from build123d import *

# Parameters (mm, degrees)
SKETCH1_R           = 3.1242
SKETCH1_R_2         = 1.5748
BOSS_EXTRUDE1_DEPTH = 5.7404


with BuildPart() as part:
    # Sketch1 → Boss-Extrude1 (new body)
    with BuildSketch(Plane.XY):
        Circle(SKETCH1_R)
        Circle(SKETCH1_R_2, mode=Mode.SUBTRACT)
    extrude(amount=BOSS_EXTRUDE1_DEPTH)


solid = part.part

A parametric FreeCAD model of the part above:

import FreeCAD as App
import Part
import Sketcher

V = App.Vector
Q = App.Units.Quantity

doc = App.newDocument("Part")
body = doc.addObject("PartDesign::Body", "Body")

sketch1 = doc.addObject("Sketcher::SketchObject", "Sketch")
body.addObject(sketch1)
sketch1.AttachmentSupport = (doc.XY_Plane, [""])
sketch1.MapMode = "FlatFace"
sketch1.addGeometry([
    Part.Circle(V(0, 0, 0), V(0, 0, 1), 3.1242),
    Part.Circle(V(0, 0, 0), V(0, 0, 1), 1.5748),
], False)
sketch1.addConstraint([
    Sketcher.Constraint("Coincident", 0, 3, -1, 1),
    Sketcher.Constraint("Coincident", 1, 3, -1, 1),
    Sketcher.Constraint("Diameter", 0, Q("0.246 in")),
    Sketcher.Constraint("Diameter", 1, Q("0.124 in")),
])
pad1 = doc.addObject("PartDesign::Pad", "Pad")
body.addObject(pad1)
pad1.Profile = sketch1
pad1.Length = Q("0.226 in")

doc.recompute()
